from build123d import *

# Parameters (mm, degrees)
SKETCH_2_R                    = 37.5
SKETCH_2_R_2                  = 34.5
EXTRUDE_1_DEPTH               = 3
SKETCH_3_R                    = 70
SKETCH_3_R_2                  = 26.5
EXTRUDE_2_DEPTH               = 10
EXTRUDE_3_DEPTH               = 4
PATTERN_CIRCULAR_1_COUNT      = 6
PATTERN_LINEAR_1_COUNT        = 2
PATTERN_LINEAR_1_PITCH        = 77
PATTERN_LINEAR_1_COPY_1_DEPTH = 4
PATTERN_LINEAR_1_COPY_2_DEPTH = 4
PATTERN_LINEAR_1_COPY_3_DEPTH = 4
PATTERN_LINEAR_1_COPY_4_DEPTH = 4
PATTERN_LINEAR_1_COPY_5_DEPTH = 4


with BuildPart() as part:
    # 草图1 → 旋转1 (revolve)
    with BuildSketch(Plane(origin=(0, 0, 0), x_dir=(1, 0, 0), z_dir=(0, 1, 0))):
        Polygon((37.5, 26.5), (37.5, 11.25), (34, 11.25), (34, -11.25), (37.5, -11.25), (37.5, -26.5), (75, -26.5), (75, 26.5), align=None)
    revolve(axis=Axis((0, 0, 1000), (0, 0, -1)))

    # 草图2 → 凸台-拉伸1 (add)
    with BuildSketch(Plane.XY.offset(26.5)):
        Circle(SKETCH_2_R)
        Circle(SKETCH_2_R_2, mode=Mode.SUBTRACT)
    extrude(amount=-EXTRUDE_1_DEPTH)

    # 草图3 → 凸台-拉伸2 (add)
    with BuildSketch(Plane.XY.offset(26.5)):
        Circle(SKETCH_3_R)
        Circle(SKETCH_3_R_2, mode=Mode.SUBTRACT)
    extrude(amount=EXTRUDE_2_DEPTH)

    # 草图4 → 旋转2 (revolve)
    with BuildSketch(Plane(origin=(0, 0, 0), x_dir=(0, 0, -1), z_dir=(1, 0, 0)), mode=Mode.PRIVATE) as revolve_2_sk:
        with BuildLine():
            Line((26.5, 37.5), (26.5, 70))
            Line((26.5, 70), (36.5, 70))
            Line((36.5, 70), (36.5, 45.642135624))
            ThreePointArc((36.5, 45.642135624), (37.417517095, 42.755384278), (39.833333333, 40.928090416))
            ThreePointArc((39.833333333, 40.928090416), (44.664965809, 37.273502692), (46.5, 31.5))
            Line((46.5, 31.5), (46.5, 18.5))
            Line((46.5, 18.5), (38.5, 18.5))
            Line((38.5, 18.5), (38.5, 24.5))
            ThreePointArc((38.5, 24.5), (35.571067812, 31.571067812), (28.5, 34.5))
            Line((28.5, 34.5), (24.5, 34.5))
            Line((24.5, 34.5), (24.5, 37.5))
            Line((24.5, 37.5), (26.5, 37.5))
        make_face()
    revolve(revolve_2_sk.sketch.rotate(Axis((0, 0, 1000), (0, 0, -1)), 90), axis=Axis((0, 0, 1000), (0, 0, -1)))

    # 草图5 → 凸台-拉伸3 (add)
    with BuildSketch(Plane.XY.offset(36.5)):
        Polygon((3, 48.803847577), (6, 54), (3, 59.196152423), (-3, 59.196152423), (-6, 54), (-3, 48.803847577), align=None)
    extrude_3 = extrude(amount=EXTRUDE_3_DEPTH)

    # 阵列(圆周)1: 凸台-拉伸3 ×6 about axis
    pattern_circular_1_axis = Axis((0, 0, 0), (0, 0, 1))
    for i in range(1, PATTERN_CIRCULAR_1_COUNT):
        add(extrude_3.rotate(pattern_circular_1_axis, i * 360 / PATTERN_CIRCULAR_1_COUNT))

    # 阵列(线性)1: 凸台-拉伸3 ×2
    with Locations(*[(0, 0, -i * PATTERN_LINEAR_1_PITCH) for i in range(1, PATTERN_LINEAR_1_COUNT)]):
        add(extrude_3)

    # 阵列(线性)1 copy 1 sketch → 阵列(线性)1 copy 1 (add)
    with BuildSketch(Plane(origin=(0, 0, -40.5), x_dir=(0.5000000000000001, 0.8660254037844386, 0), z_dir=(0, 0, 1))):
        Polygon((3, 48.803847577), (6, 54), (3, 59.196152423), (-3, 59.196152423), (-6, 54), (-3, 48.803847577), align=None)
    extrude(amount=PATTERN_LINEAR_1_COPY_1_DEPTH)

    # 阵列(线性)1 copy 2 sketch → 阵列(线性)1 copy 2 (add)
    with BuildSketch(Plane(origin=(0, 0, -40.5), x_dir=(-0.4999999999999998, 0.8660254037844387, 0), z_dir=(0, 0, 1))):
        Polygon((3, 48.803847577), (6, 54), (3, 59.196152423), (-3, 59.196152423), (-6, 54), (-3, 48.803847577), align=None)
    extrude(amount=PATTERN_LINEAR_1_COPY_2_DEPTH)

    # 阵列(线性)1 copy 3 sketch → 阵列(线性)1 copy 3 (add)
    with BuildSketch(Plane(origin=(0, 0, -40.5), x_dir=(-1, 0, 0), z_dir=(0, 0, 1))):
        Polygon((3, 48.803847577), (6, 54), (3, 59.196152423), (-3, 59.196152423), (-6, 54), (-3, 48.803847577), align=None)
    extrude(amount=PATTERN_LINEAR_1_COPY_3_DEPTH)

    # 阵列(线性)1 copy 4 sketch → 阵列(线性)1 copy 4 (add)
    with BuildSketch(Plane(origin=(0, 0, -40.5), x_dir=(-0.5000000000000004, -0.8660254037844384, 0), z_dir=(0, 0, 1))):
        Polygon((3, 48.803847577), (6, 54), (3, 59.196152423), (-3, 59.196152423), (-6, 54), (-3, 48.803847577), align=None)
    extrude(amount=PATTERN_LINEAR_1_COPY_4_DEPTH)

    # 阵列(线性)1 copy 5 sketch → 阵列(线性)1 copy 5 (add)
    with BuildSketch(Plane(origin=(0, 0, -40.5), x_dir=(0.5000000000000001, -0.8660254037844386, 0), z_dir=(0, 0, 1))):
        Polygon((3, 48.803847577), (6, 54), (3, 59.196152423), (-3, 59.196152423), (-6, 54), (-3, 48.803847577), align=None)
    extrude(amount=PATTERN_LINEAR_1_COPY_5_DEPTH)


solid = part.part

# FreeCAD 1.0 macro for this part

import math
import FreeCAD as App
import Part
import Sketcher

V = App.Vector
Q = App.Units.Quantity


def add_polygon(sketch, points):
    """Adds a closed chain of lines whose ends are joined by coincident constraints."""
    first, n = sketch.GeometryCount, len(points)
    for a, b in zip(points, points[1:] + points[:1]):
        sketch.addGeometry(Part.LineSegment(App.Vector(*a, 0), App.Vector(*b, 0)), False)
    for i in range(n):
        sketch.addConstraint(Sketcher.Constraint("Coincident", first + i, 2, first + (i + 1) % n, 1))

doc = App.newDocument("Part")
body = doc.addObject("PartDesign::Body", "Body")

# Sketch on XZ plane
sketch1 = doc.addObject("Sketcher::SketchObject", "Sketch")
body.addObject(sketch1)
sketch1.AttachmentSupport = (doc.XZ_Plane, [""])
sketch1.MapMode = "FlatFace"
add_polygon(sketch1, [(37.5, -26.5), (37.5, -11.2), (34, -11.2), (34, 11.2), (37.5, 11.2), (37.5, 26.5), (75, 26.5), (75, -26.5)])  # lines 0-7
sketch1.addConstraint([
    Sketcher.Constraint("Vertical", 0),
    Sketcher.Constraint("Horizontal", 1),
    Sketcher.Constraint("Vertical", 2),
    Sketcher.Constraint("Horizontal", 3),
    Sketcher.Constraint("Vertical", 4),
    Sketcher.Constraint("Horizontal", 5),
    Sketcher.Constraint("Vertical", 6),
    Sketcher.Constraint("Horizontal", 7),
    Sketcher.Constraint("Symmetric", 0, 2, 3, 2, -1),
    Sketcher.Constraint("Equal", 0, 4),
    Sketcher.Constraint("DistanceY", 6, 2, 6, 1, 53.0),
    Sketcher.Constraint("DistanceX", 1, 2, 1, 1, 3.5),
    Sketcher.Constraint("DistanceX", 5, 1, 5, 2, 37.5),
    Sketcher.Constraint("DistanceY", 2, 1, 2, 2, 22.5),
    Sketcher.Constraint("DistanceX", -1, 1, 1, 2, 34.0),
])
revolution = doc.addObject("PartDesign::Revolution", "Revolution")
body.addObject(revolution)
revolution.Profile = sketch1
revolution.ReferenceAxis = (sketch1, ["V_Axis"])
revolution.Angle = 360

# Sketch on XY plane
sketch2 = doc.addObject("Sketcher::SketchObject", "Sketch001")
body.addObject(sketch2)
sketch2.AttachmentSupport = (doc.XY_Plane, [""])
sketch2.MapMode = "FlatFace"
sketch2.AttachmentOffset = App.Placement(V(0, 0, 26.5), App.Rotation())
sketch2.addGeometry([
    Part.Circle(V(0, 0, 0), V(0, 0, 1), 38),
    Part.Circle(V(0, 0, 0), V(0, 0, 1), 34),
], False)
sketch2.addConstraint([
    Sketcher.Constraint("Coincident", 0, 3, -1, 1),
    Sketcher.Constraint("Coincident", 1, 3, -1, 1),
    Sketcher.Constraint("Diameter", 0, 75.0),
    Sketcher.Constraint("Diameter", 1, 69.0),
])
pad1 = doc.addObject("PartDesign::Pad", "Pad")
body.addObject(pad1)
pad1.Profile = sketch2
pad1.Length = 3
pad1.Reversed = True

# Sketch on XY plane
sketch3 = doc.addObject("Sketcher::SketchObject", "Sketch002")
body.addObject(sketch3)
sketch3.AttachmentSupport = (doc.XY_Plane, [""])
sketch3.MapMode = "FlatFace"
sketch3.AttachmentOffset = App.Placement(V(0, 0, 26.5), App.Rotation())
sketch3.addGeometry([
    Part.Circle(V(0, 0, 0), V(0, 0, 1), 70),
    Part.Circle(V(0, 0, 0), V(0, 0, 1), 26),
], False)
sketch3.addConstraint([
    Sketcher.Constraint("Coincident", 0, 3, -1, 1),
    Sketcher.Constraint("Coincident", 1, 3, -1, 1),
    Sketcher.Constraint("Diameter", 0, 140.0),
    Sketcher.Constraint("Diameter", 1, 53.0),
])
pad2 = doc.addObject("PartDesign::Pad", "Pad001")
body.addObject(pad2)
pad2.Profile = sketch3
pad2.Length = 10

# Sketch on YZ plane
sketch4 = doc.addObject("Sketcher::SketchObject", "Sketch003")
body.addObject(sketch4)
sketch4.AttachmentSupport = (doc.YZ_Plane, [""])
sketch4.MapMode = "FlatFace"
sketch4.addGeometry([
    Part.LineSegment(V(70, -26.5, 0), V(37.5, -26.5, 0)),  # 0
    Part.LineSegment(V(37.5, -26.5, 0), V(37.5, -24.5, 0)),  # 1
    Part.LineSegment(V(37.5, -24.5, 0), V(34.5, -24.5, 0)),  # 2
    Part.LineSegment(V(34.5, -24.5, 0), V(34.5, -28.5, 0)),  # 3
    Part.ArcOfCircle(Part.Circle(V(24.5, -28.5, 0), V(0, 0, 1), 10), math.radians(-90), math.radians(0)),  # 4
    Part.LineSegment(V(24.5, -38.5, 0), V(18.5, -38.5, 0)),  # 5
    Part.LineSegment(V(18.5, -38.5, 0), V(18.5, -46.5, 0)),  # 6
    Part.LineSegment(V(18.5, -46.5, 0), V(31.5, -46.5, 0)),  # 7
    Part.ArcOfCircle(Part.Circle(V(31.5, -36.5, 0), V(0, 0, 1), 10), math.radians(-90), math.radians(-19)),  # 8
    Part.ArcOfCircle(Part.Circle(V(45.6, -41.5, 0), V(0, 0, 1), 5), math.radians(90), math.radians(161)),  # 9
    Part.LineSegment(V(45.6, -36.5, 0), V(70, -36.5, 0)),  # 10
    Part.LineSegment(V(70, -36.5, 0), V(70, -26.5, 0)),  # 11
], False)
sketch4.addConstraint([
    Sketcher.Constraint("Coincident", 0, 2, 1, 1),
    Sketcher.Constraint("Coincident", 1, 2, 2, 1),
    Sketcher.Constraint("Coincident", 2, 2, 3, 1),
    Sketcher.Constraint("Tangent", 3, 2, 4, 2),
    Sketcher.Constraint("Tangent", 4, 1, 5, 1),
    Sketcher.Constraint("Coincident", 5, 2, 6, 1),
    Sketcher.Constraint("Coincident", 6, 2, 7, 1),
    Sketcher.Constraint("Tangent", 7, 2, 8, 1),
    Sketcher.Constraint("Tangent", 8, 2, 9, 2),
    Sketcher.Constraint("Tangent", 9, 1, 10, 1),
    Sketcher.Constraint("Coincident", 10, 2, 11, 1),
    Sketcher.Constraint("Coincident", 11, 2, 0, 1),
    Sketcher.Constraint("Horizontal", 0),
    Sketcher.Constraint("Vertical", 1),
    Sketcher.Constraint("Horizontal", 2),
    Sketcher.Constraint("Vertical", 3),
    Sketcher.Constraint("Horizontal", 5),
    Sketcher.Constraint("Vertical", 6),
    Sketcher.Constraint("Horizontal", 7),
    Sketcher.Constraint("Horizontal", 10),
    Sketcher.Constraint("Vertical", 11),
    Sketcher.Constraint("Equal", 4, 8),
    Sketcher.Constraint("Horizontal", 8, 3, 9, 1),
    Sketcher.Constraint("Radius", 4, 10.0),
    Sketcher.Constraint("Radius", 9, 5.0),
    Sketcher.Constraint("DistanceX", 2, 2, 2, 1, 3.0),
    Sketcher.Constraint("DistanceX", 5, 2, 5, 1, 6.0),
    Sketcher.Constraint("DistanceX", 7, 1, 7, 2, 13.0),
    Sketcher.Constraint("DistanceY", 1, 1, 1, 2, 2.0),
    Sketcher.Constraint("DistanceY", 3, 2, 3, 1, 4.0),
    Sketcher.Constraint("DistanceY", 6, 2, 6, 1, 8.0),
    Sketcher.Constraint("DistanceX", 0, 2, 0, 1, 32.5),
    Sketcher.Constraint("DistanceX", -1, 1, 10, 2, 70.0),
    Sketcher.Constraint("DistanceY", 4, 3, -1, 1, 28.5),
])
revolution2 = doc.addObject("PartDesign::Revolution", "Revolution001")
body.addObject(revolution2)
revolution2.Profile = sketch4
revolution2.ReferenceAxis = (sketch4, ["V_Axis"])
revolution2.Angle = 360

# Sketch on XY plane
sketch5 = doc.addObject("Sketcher::SketchObject", "Sketch004")
body.addObject(sketch5)
sketch5.AttachmentSupport = (doc.XY_Plane, [""])
sketch5.MapMode = "FlatFace"
sketch5.AttachmentOffset = App.Placement(V(0, 0, 36.5), App.Rotation())
add_polygon(sketch5, [(3, 49), (6, 54), (3, 59), (-3, 59), (-6, 54), (-3, 49)])  # lines 0-5
sketch5.addConstraint([
    Sketcher.Constraint("Horizontal", 2),
    Sketcher.Constraint("Horizontal", 5),
    Sketcher.Constraint("Symmetric", 0, 2, 3, 2, -2),
    Sketcher.Constraint("Parallel", 0, 3),
    Sketcher.Constraint("Parallel", 1, 4),
    Sketcher.Constraint("Vertical", 2, 2, 4, 2),
    Sketcher.Constraint("Vertical", 1, 2, 5, 2),
    Sketcher.Constraint("DistanceX", 2, 2, 2, 1, 6.0),
    Sketcher.Constraint("Angle", 0, Q("60 deg")),
    Sketcher.Constraint("Distance", 0, 6.0),
    Sketcher.Constraint("DistanceY", -1, 1, 0, 2, 54.0),
])
pad3 = doc.addObject("PartDesign::Pad", "Pad002")
body.addObject(pad3)
pad3.Profile = sketch5
pad3.Length = 4
doc.recompute()

polarpattern = doc.addObject("PartDesign::PolarPattern", "PolarPattern")
body.addObject(polarpattern)
polarpattern.Originals = [pad3]
polarpattern.Axis = (doc.Z_Axis, [""])
polarpattern.Angle = 360
polarpattern.Occurrences = 6
body.Tip = polarpattern
doc.recompute()

linearpattern = doc.addObject("PartDesign::LinearPattern", "LinearPattern")
body.addObject(linearpattern)
linearpattern.Originals = [pad3]
linearpattern.Direction = (doc.Z_Axis, [""])
linearpattern.Mode = "offset"
linearpattern.Offset = 77
linearpattern.Occurrences = 2
linearpattern.Reversed = True
body.Tip = linearpattern

# Sketch on XY plane
sketch6 = doc.addObject("Sketcher::SketchObject", "Sketch005")
body.addObject(sketch6)
sketch6.AttachmentSupport = (doc.XY_Plane, [""])
sketch6.MapMode = "FlatFace"
sketch6.AttachmentOffset = App.Placement(V(0, 0, -40.5), App.Rotation())
add_polygon(sketch6, [(-41, 27), (-44, 32), (-50, 32), (-53, 27), (-50, 22), (-44, 22)])  # lines 0-5
sketch6.addConstraint([
    Sketcher.Constraint("Horizontal", 1),
    Sketcher.Constraint("Horizontal", 4),
    Sketcher.Constraint("Parallel", 0, 3),
    Sketcher.Constraint("Parallel", 2, 5),
    Sketcher.Constraint("Horizontal", 2, 2, 5, 2),
    Sketcher.Constraint("Vertical", 1, 2, 3, 2),
    Sketcher.Constraint("Vertical", 0, 2, 4, 2),
    Sketcher.Constraint("DistanceX", 1, 2, 1, 1, 6.0),
    Sketcher.Constraint("Angle", 0, Q("120 deg")),
    Sketcher.Constraint("Distance", 0, 6.0),
    Sketcher.Constraint("DistanceY", -1, 1, 2, 2, 27.0),
    Sketcher.Constraint("DistanceX", 0, 2, -1, 1, 43.765372),
])
pad4 = doc.addObject("PartDesign::Pad", "Pad003")
body.addObject(pad4)
pad4.Profile = sketch6
pad4.Length = 4

# Sketch on XY plane
sketch7 = doc.addObject("Sketcher::SketchObject", "Sketch006")
body.addObject(sketch7)
sketch7.AttachmentSupport = (doc.XY_Plane, [""])
sketch7.MapMode = "FlatFace"
sketch7.AttachmentOffset = App.Placement(V(0, 0, -40.5), App.Rotation())
add_polygon(sketch7, [(-44, -22), (-50, -22), (-53, -27), (-50, -32), (-44, -32), (-41, -27)])  # lines 0-5
sketch7.addConstraint([
    Sketcher.Constraint("Horizontal", 0),
    Sketcher.Constraint("Horizontal", 3),
    Sketcher.Constraint("Parallel", 1, 4),
    Sketcher.Constraint("Parallel", 2, 5),
    Sketcher.Constraint("Horizontal", 1, 2, 4, 2),
    Sketcher.Constraint("Vertical", 0, 2, 2, 2),
    Sketcher.Constraint("Vertical", 3, 2, 5, 2),
    Sketcher.Constraint("DistanceX", 0, 2, 0, 1, 6.0),
    Sketcher.Constraint("Angle", 1, Q("-120 deg")),
    Sketcher.Constraint("Distance", 1, 6.0),
    Sketcher.Constraint("DistanceY", 1, 2, -1, 1, 27.0),
    Sketcher.Constraint("DistanceX", 0, 2, -1, 1, 49.765372),
])
pad5 = doc.addObject("PartDesign::Pad", "Pad004")
body.addObject(pad5)
pad5.Profile = sketch7
pad5.Length = 4

# Sketch on XY plane
sketch8 = doc.addObject("Sketcher::SketchObject", "Sketch007")
body.addObject(sketch8)
sketch8.AttachmentSupport = (doc.XY_Plane, [""])
sketch8.MapMode = "FlatFace"
sketch8.AttachmentOffset = App.Placement(V(0, 0, -40.5), App.Rotation())
add_polygon(sketch8, [(-3, -49), (-6, -54), (-3, -59), (3, -59), (6, -54), (3, -49)])  # lines 0-5
sketch8.addConstraint([
    Sketcher.Constraint("Horizontal", 2),
    Sketcher.Constraint("Horizontal", 5),
    Sketcher.Constraint("Symmetric", 0, 2, 3, 2, -2),
    Sketcher.Constraint("Parallel", 0, 3),
    Sketcher.Constraint("Parallel", 1, 4),
    Sketcher.Constraint("Vertical", 2, 2, 4, 2),
    Sketcher.Constraint("Vertical", 1, 2, 5, 2),
    Sketcher.Constraint("DistanceX", 2, 1, 2, 2, 6.0),
    Sketcher.Constraint("Angle", 0, Q("-120 deg")),
    Sketcher.Constraint("Distance", 0, 6.0),
    Sketcher.Constraint("DistanceY", 0, 2, -1, 1, 54.0),
])
pad6 = doc.addObject("PartDesign::Pad", "Pad005")
body.addObject(pad6)
pad6.Profile = sketch8
pad6.Length = 4

# Sketch on XY plane
sketch9 = doc.addObject("Sketcher::SketchObject", "Sketch008")
body.addObject(sketch9)
sketch9.AttachmentSupport = (doc.XY_Plane, [""])
sketch9.MapMode = "FlatFace"
sketch9.AttachmentOffset = App.Placement(V(0, 0, -40.5), App.Rotation())
add_polygon(sketch9, [(41, -27), (44, -32), (50, -32), (53, -27), (50, -22), (44, -22)])  # lines 0-5
sketch9.addConstraint([
    Sketcher.Constraint("Horizontal", 1),
    Sketcher.Constraint("Horizontal", 4),
    Sketcher.Constraint("Parallel", 0, 3),
    Sketcher.Constraint("Parallel", 2, 5),
    Sketcher.Constraint("Horizontal", 2, 2, 5, 2),
    Sketcher.Constraint("Vertical", 1, 2, 3, 2),
    Sketcher.Constraint("Vertical", 0, 2, 4, 2),
    Sketcher.Constraint("DistanceX", 1, 1, 1, 2, 6.0),
    Sketcher.Constraint("Angle", 0, Q("-60 deg")),
    Sketcher.Constraint("Distance", 0, 6.0),
    Sketcher.Constraint("DistanceY", 2, 2, -1, 1, 27.0),
    Sketcher.Constraint("DistanceX", -1, 1, 0, 2, 43.765372),
])
pad7 = doc.addObject("PartDesign::Pad", "Pad006")
body.addObject(pad7)
pad7.Profile = sketch9
pad7.Length = 4

# Sketch on XY plane
sketch10 = doc.addObject("Sketcher::SketchObject", "Sketch009")
body.addObject(sketch10)
sketch10.AttachmentSupport = (doc.XY_Plane, [""])
sketch10.MapMode = "FlatFace"
sketch10.AttachmentOffset = App.Placement(V(0, 0, -40.5), App.Rotation())
add_polygon(sketch10, [(44, 22), (50, 22), (53, 27), (50, 32), (44, 32), (41, 27)])  # lines 0-5
sketch10.addConstraint([
    Sketcher.Constraint("Horizontal", 0),
    Sketcher.Constraint("Horizontal", 3),
    Sketcher.Constraint("Parallel", 1, 4),
    Sketcher.Constraint("Parallel", 2, 5),
    Sketcher.Constraint("Horizontal", 1, 2, 4, 2),
    Sketcher.Constraint("Vertical", 0, 2, 2, 2),
    Sketcher.Constraint("Vertical", 3, 2, 5, 2),
    Sketcher.Constraint("DistanceX", 0, 1, 0, 2, 6.0),
    Sketcher.Constraint("Angle", 1, Q("60 deg")),
    Sketcher.Constraint("Distance", 1, 6.0),
    Sketcher.Constraint("DistanceY", -1, 1, 1, 2, 27.0),
    Sketcher.Constraint("DistanceX", -1, 1, 0, 2, 49.765372),
])
pad8 = doc.addObject("PartDesign::Pad", "Pad007")
body.addObject(pad8)
pad8.Profile = sketch10
pad8.Length = 4

doc.recompute()
